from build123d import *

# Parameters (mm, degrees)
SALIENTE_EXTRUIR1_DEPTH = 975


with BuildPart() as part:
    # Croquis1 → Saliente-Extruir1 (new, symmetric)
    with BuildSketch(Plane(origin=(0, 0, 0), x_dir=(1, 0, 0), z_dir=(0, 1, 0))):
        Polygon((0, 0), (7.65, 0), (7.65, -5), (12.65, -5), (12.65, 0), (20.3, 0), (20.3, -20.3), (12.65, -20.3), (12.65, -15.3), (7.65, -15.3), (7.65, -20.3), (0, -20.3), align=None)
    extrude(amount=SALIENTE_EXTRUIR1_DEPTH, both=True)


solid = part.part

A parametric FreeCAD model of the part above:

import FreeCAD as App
import Part
import Sketcher
from FreeCAD import Vector
Q = App.Units.Quantity

doc = App.newDocument("Part")
body = doc.addObject("PartDesign::Body", "Body")

sketch1 = body.newObject("Sketcher::SketchObject", "Sketch")
sketch1.AttachmentSupport = (doc.getObject("XZ_Plane"), [""])
sketch1.MapMode = "FlatFace"
sketch1.addGeometry([
    Part.LineSegment(Vector(7.65, 0, 0), Vector(0, 0, 0)),
    Part.LineSegment(Vector(0, 0, 0), Vector(0, 20.3, 0)),
    Part.LineSegment(Vector(0, 20.3, 0), Vector(7.65, 20.3, 0)),
    Part.LineSegment(Vector(7.65, 20.3, 0), Vector(7.65, 15.3, 0)),
    Part.LineSegment(Vector(7.65, 15.3, 0), Vector(12.65, 15.3, 0)),
    Part.LineSegment(Vector(12.65, 15.3, 0), Vector(12.65, 20.3, 0)),
    Part.LineSegment(Vector(12.65, 20.3, 0), Vector(20.3, 20.3, 0)),
    Part.LineSegment(Vector(20.3, 20.3, 0), Vector(20.3, 0, 0)),
    Part.LineSegment(Vector(20.3, 0, 0), Vector(12.65, 0, 0)),
    Part.LineSegment(Vector(12.65, 0, 0), Vector(12.65, 5, 0)),
    Part.LineSegment(Vector(12.65, 5, 0), Vector(7.65, 5, 0)),
    Part.LineSegment(Vector(7.65, 5, 0), Vector(7.65, 0, 0)),
], False)
sketch1.addConstraint([
    Sketcher.Constraint("Coincident", 0, 2, 1, 1),
    Sketcher.Constraint("Coincident", 1, 2, 2, 1),
    Sketcher.Constraint("Coincident", 2, 2, 3, 1),
    Sketcher.Constraint("Coincident", 3, 2, 4, 1),
    Sketcher.Constraint("Coincident", 4, 2, 5, 1),
    Sketcher.Constraint("Coincident", 5, 2, 6, 1),
    Sketcher.Constraint("Coincident", 6, 2, 7, 1),
    Sketcher.Constraint("Coincident", 7, 2, 8, 1),
    Sketcher.Constraint("Coincident", 8, 2, 9, 1),
    Sketcher.Constraint("Coincident", 9, 2, 10, 1),
    Sketcher.Constraint("Coincident", 10, 2, 11, 1),
    Sketcher.Constraint("Coincident", 11, 2, 0, 1),
    Sketcher.Constraint("Horizontal", 0),
    Sketcher.Constraint("Vertical", 1),
    Sketcher.Constraint("Horizontal", 2),
    Sketcher.Constraint("Vertical", 3),
    Sketcher.Constraint("Horizontal", 4),
    Sketcher.Constraint("Vertical", 5),
    Sketcher.Constraint("Horizontal", 6),
    Sketcher.Constraint("Vertical", 7),
    Sketcher.Constraint("Horizontal", 8),
    Sketcher.Constraint("Vertical", 9),
    Sketcher.Constraint("Horizontal", 10),
    Sketcher.Constraint("Vertical", 11),
    Sketcher.Constraint("Coincident", 0, 2, -1, 1),
    Sketcher.Constraint("PointOnObject", 7, 2, -1),
    Sketcher.Constraint("Horizontal", 2, 2, 5, 2),
    Sketcher.Constraint("Vertical", 5, 2, 8, 2),
    Sketcher.Constraint("Vertical", 3, 2, 10, 2),
    Sketcher.Constraint("Equal", 2, 6),
    Sketcher.Constraint("Equal", 10, 3),
    Sketcher.Constraint("Equal", 5, 9),
    Sketcher.Constraint("DistanceX", 4, 1, 4, 2, Q("5 mm")),
    Sketcher.Constraint("DistanceY", 1, 1, 1, 2, Q("20.3 mm")),
    Sketcher.Constraint("DistanceX", 0, 2, 0, 1, Q("7.65 mm")),
])
pad1 = body.newObject("PartDesign::Pad", "Pad")
pad1.Profile = sketch1
pad1.Length = 1950
pad1.Midplane = True

doc.recompute()
